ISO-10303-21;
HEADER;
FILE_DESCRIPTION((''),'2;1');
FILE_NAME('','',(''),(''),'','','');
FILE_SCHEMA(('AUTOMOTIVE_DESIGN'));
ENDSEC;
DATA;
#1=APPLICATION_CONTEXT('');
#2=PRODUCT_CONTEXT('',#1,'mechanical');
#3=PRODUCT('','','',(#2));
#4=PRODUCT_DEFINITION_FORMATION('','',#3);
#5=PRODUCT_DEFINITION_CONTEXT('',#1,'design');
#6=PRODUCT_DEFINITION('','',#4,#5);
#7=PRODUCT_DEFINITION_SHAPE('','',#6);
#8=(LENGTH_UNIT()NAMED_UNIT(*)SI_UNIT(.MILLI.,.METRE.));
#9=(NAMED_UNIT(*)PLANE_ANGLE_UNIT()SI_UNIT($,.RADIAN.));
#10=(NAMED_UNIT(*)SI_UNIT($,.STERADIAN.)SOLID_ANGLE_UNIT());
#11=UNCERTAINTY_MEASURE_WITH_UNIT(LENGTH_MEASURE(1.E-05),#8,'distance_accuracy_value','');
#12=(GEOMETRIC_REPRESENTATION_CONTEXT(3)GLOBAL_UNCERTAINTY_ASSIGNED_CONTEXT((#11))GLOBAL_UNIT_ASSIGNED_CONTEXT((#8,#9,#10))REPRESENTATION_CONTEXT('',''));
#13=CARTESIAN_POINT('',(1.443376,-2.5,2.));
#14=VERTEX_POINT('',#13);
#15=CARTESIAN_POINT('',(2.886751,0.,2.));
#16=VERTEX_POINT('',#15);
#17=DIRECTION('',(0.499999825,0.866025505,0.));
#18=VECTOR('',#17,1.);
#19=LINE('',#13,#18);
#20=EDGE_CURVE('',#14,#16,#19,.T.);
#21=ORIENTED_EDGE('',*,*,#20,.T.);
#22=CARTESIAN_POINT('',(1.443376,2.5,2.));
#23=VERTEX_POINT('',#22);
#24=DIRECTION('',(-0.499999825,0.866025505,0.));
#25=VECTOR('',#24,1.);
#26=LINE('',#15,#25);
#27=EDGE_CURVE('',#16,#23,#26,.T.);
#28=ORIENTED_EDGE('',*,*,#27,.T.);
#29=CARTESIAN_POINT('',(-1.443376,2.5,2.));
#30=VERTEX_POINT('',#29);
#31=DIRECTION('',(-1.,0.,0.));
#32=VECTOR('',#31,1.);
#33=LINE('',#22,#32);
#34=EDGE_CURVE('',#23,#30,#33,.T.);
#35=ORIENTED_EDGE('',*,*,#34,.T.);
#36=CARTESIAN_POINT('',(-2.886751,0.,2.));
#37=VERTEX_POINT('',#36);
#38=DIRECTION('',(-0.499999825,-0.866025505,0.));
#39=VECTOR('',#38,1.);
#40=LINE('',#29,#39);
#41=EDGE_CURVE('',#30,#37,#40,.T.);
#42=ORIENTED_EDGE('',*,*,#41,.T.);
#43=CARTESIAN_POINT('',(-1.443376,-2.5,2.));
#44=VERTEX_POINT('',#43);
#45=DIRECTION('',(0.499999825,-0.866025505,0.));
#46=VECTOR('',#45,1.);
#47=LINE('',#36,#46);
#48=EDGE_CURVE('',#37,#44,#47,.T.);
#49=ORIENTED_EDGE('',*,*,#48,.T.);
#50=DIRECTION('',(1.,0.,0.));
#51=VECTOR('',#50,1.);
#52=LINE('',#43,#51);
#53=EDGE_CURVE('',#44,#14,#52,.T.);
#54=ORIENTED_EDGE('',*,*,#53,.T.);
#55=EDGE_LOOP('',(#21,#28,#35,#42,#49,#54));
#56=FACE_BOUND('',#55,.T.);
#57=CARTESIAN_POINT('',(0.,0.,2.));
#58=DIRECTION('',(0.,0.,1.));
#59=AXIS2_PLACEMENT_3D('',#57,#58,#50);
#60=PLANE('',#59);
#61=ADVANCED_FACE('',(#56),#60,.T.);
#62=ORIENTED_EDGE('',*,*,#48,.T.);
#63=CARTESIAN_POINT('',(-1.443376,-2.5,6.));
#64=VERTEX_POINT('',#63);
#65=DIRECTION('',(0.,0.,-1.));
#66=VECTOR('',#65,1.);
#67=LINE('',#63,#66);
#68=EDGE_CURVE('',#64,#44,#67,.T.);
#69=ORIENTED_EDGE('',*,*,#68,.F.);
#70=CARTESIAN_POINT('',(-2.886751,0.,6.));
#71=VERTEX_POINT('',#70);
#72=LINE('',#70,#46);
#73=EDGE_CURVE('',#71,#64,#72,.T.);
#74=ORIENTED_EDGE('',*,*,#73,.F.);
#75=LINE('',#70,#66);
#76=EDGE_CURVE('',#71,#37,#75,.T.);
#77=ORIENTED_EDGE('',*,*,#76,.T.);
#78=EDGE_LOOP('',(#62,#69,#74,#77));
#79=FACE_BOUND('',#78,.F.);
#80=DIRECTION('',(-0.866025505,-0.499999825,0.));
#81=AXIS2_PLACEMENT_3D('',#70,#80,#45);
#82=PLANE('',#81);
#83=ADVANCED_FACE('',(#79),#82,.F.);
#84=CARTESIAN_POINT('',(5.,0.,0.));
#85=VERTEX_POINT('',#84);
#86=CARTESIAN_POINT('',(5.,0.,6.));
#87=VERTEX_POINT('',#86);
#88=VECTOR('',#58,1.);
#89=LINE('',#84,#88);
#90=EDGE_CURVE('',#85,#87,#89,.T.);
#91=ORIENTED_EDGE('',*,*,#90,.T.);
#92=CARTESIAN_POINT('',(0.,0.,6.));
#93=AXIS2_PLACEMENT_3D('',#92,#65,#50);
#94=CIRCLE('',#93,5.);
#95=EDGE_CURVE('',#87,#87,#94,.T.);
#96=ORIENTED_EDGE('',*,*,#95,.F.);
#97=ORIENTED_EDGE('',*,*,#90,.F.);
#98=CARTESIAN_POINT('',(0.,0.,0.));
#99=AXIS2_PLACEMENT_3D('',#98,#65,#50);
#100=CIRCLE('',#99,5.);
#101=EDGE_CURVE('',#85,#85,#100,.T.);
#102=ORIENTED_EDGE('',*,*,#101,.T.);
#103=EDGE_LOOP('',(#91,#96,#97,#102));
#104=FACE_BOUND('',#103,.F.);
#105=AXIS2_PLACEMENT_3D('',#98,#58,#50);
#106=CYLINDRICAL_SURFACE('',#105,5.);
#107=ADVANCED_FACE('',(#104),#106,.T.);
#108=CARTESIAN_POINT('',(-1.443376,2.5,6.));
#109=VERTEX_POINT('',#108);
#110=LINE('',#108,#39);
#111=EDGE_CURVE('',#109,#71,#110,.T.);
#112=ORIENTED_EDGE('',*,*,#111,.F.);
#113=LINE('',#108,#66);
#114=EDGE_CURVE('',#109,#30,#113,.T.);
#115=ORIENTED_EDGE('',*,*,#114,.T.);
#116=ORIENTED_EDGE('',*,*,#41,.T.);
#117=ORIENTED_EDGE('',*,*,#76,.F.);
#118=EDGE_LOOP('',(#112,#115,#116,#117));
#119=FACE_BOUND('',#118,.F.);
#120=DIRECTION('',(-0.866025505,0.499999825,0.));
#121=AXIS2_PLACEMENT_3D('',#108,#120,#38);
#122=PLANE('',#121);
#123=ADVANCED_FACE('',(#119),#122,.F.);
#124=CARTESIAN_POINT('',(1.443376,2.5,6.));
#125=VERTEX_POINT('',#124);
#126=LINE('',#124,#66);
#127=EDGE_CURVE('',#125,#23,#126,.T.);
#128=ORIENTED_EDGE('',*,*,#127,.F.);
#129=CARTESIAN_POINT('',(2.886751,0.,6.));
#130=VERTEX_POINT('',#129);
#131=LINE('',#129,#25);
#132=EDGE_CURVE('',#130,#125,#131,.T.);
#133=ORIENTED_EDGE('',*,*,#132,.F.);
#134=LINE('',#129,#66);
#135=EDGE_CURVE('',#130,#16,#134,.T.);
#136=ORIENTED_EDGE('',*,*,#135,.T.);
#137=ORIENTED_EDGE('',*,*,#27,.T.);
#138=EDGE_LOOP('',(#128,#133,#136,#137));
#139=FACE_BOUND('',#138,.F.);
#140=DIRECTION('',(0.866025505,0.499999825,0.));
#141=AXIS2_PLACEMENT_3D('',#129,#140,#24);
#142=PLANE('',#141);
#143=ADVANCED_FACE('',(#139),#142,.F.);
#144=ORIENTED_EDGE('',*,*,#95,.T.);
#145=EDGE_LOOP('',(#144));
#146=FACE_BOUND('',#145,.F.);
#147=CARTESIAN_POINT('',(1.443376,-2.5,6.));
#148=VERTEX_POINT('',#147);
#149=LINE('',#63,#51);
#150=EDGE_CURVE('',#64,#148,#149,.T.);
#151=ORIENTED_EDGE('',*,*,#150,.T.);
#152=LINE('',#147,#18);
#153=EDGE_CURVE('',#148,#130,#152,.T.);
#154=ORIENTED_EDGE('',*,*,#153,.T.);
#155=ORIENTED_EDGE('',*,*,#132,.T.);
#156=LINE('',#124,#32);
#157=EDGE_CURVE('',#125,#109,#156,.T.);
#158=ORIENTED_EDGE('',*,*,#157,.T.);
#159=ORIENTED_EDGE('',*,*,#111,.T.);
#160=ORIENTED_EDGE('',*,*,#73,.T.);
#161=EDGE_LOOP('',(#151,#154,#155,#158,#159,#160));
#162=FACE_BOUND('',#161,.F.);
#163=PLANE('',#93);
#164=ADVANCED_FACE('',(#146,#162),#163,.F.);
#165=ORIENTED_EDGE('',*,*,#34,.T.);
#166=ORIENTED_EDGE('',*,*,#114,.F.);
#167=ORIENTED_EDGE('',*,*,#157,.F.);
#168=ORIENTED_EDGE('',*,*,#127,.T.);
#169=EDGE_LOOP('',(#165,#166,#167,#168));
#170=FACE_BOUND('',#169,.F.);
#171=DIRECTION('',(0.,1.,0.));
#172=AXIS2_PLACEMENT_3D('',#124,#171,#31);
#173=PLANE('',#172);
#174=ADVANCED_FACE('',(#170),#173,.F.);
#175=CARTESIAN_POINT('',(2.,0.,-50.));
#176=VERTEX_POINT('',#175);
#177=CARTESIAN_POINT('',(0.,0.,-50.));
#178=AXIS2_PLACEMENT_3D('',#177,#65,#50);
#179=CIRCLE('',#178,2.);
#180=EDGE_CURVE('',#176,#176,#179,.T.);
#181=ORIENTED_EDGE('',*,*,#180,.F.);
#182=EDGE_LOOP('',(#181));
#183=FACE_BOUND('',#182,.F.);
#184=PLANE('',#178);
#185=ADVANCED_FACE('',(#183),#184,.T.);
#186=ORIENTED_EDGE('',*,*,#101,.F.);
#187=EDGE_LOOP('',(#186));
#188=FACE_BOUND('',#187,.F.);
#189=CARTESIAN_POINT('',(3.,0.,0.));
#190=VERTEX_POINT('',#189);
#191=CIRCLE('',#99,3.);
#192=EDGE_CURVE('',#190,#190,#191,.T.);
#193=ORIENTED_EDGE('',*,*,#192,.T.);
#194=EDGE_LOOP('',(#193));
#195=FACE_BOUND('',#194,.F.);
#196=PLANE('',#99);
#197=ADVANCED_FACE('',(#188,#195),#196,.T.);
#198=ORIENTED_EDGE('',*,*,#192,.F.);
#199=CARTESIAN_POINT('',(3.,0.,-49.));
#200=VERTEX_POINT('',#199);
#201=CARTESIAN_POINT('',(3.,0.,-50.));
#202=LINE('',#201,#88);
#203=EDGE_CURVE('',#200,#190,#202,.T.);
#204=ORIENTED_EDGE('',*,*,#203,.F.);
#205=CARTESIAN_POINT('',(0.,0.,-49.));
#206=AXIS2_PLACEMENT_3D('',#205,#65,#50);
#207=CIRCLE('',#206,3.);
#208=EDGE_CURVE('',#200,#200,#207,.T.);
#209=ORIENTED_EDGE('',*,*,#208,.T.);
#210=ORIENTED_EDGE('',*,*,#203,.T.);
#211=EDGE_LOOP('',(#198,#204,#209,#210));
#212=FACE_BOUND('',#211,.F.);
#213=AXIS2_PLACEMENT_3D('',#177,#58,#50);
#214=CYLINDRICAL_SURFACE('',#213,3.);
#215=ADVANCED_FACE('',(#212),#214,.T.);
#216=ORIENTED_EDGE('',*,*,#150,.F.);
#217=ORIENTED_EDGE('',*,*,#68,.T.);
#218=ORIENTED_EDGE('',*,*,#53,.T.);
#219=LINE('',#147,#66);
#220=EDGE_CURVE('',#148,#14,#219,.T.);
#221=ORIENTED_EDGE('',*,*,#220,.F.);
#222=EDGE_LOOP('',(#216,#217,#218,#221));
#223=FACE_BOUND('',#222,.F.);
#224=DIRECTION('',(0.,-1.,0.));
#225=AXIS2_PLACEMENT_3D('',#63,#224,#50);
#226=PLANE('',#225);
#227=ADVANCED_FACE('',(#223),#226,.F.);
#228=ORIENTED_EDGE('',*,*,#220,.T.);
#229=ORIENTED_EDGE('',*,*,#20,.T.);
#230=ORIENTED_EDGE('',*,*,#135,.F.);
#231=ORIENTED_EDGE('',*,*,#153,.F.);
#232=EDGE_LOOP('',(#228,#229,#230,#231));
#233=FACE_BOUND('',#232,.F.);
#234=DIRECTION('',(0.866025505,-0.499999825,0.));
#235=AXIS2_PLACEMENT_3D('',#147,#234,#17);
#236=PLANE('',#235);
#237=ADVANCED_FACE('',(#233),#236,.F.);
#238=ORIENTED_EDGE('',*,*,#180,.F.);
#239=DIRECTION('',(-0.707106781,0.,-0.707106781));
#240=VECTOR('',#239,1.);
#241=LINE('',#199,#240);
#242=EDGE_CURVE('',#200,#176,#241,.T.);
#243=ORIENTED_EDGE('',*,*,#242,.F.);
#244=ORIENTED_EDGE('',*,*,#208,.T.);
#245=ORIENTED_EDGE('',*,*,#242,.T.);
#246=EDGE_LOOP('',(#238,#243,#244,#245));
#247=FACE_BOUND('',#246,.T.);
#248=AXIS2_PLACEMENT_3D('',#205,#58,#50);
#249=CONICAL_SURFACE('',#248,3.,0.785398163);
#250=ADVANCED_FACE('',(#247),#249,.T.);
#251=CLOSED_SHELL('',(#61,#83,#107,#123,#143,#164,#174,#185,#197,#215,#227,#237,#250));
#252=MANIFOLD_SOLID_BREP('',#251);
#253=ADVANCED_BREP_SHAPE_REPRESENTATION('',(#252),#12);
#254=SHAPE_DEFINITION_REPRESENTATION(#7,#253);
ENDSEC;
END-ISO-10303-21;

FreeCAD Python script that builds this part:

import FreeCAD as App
import Part
import Sketcher
from FreeCAD import Vector
Q = App.Units.Quantity


def edges_at(feature, points):
    """Names of the edges that pass closest to the given points."""
    edges = feature.Shape.Edges
    near = lambda p: min(range(len(edges)), key=lambda i: edges[i].distToShape(Part.Vertex(*p))[0])
    return sorted({f"Edge{near(p) + 1}" for p in points})


def add_polygon(sketch, points):
    """Adds a closed chain of lines whose ends are joined by coincident constraints."""
    first, n = sketch.GeometryCount, len(points)
    for a, b in zip(points, points[1:] + points[:1]):
        sketch.addGeometry(Part.LineSegment(App.Vector(*a, 0), App.Vector(*b, 0)), False)
    for i in range(n):
        sketch.addConstraint(Sketcher.Constraint("Coincident", first + i, 2, first + (i + 1) % n, 1))

doc = App.newDocument("Part")
body = doc.addObject("PartDesign::Body", "Body")

# Sketch on XZ plane
sketch1 = body.newObject("Sketcher::SketchObject", "Sketch")
sketch1.AttachmentSupport = (doc.getObject("XZ_Plane"), [""])
sketch1.MapMode = "FlatFace"
add_polygon(sketch1, [(5, 6), (0, 6), (0, -50), (3, -50), (3, 0), (5, 0)])  # lines 0-5
sketch1.addConstraint(Sketcher.Constraint("Horizontal", 0))
sketch1.addConstraint(Sketcher.Constraint("Vertical", 1))
sketch1.addConstraint(Sketcher.Constraint("Horizontal", 2))
sketch1.addConstraint(Sketcher.Constraint("Vertical", 3))
sketch1.addConstraint(Sketcher.Constraint("Horizontal", 4))
sketch1.addConstraint(Sketcher.Constraint("Vertical", 5))
sketch1.addConstraint(Sketcher.Constraint("PointOnObject", 0, 2, -2))
sketch1.addConstraint(Sketcher.Constraint("PointOnObject", 3, 2, -1))
sketch1.addConstraint(Sketcher.Constraint("DistanceX", 0, 2, 0, 1, 5.0))
sketch1.addConstraint(Sketcher.Constraint("DistanceX", 2, 1, 2, 2, 3.0))
sketch1.addConstraint(Sketcher.Constraint("DistanceY", 1, 2, 1, 1, 56.0))
sketch1.addConstraint(Sketcher.Constraint("DistanceY", 3, 1, 3, 2, 50.0))
revolution = body.newObject("PartDesign::Revolution", "Revolution")
revolution.Profile = sketch1
revolution.ReferenceAxis = (sketch1, ["V_Axis"])
revolution.Angle = 360

# Sketch on XY plane
sketch2 = body.newObject("Sketcher::SketchObject", "Sketch001")
sketch2.AttachmentSupport = (doc.getObject("XY_Plane"), [""])
sketch2.MapMode = "FlatFace"
sketch2.AttachmentOffset = App.Placement(Vector(0, 0, 6), App.Rotation())
add_polygon(sketch2, [(1.4, 2.5), (-1.4, 2.5), (-2.9, 0), (-1.4, -2.5), (1.4, -2.5), (2.9, 0)])  # lines 0-5
sketch2.addConstraint(Sketcher.Constraint("Horizontal", 0))
sketch2.addConstraint(Sketcher.Constraint("Horizontal", 3))
sketch2.addConstraint(Sketcher.Constraint("Symmetric", 0, 2, 3, 2, -1, 1))
sketch2.addConstraint(Sketcher.Constraint("Symmetric", 1, 2, 4, 2, -1, 1))
sketch2.addConstraint(Sketcher.Constraint("PointOnObject", 1, 2, -1))
sketch2.addConstraint(Sketcher.Constraint("Parallel", 2, 5))
sketch2.addConstraint(Sketcher.Constraint("Vertical", 0, 2, 2, 2))
sketch2.addConstraint(Sketcher.Constraint("Angle", 1, Q("-119.999988 deg")))
sketch2.addConstraint(Sketcher.Constraint("DistanceY", 2, 2, 0, 2, 5.0))
sketch2.addConstraint(Sketcher.Constraint("DistanceX", 0, 2, 0, 1, 2.886752))
pocket1 = body.newObject("PartDesign::Pocket", "Pocket")
pocket1.Profile = sketch2
pocket1.Length = 4
doc.recompute()

chamfer = body.newObject("PartDesign::Chamfer", "Chamfer")
chamfer.Base = (pocket1, edges_at(pocket1, [(-3, 0, -50)]))
chamfer.Size = 1

doc.recompute()
